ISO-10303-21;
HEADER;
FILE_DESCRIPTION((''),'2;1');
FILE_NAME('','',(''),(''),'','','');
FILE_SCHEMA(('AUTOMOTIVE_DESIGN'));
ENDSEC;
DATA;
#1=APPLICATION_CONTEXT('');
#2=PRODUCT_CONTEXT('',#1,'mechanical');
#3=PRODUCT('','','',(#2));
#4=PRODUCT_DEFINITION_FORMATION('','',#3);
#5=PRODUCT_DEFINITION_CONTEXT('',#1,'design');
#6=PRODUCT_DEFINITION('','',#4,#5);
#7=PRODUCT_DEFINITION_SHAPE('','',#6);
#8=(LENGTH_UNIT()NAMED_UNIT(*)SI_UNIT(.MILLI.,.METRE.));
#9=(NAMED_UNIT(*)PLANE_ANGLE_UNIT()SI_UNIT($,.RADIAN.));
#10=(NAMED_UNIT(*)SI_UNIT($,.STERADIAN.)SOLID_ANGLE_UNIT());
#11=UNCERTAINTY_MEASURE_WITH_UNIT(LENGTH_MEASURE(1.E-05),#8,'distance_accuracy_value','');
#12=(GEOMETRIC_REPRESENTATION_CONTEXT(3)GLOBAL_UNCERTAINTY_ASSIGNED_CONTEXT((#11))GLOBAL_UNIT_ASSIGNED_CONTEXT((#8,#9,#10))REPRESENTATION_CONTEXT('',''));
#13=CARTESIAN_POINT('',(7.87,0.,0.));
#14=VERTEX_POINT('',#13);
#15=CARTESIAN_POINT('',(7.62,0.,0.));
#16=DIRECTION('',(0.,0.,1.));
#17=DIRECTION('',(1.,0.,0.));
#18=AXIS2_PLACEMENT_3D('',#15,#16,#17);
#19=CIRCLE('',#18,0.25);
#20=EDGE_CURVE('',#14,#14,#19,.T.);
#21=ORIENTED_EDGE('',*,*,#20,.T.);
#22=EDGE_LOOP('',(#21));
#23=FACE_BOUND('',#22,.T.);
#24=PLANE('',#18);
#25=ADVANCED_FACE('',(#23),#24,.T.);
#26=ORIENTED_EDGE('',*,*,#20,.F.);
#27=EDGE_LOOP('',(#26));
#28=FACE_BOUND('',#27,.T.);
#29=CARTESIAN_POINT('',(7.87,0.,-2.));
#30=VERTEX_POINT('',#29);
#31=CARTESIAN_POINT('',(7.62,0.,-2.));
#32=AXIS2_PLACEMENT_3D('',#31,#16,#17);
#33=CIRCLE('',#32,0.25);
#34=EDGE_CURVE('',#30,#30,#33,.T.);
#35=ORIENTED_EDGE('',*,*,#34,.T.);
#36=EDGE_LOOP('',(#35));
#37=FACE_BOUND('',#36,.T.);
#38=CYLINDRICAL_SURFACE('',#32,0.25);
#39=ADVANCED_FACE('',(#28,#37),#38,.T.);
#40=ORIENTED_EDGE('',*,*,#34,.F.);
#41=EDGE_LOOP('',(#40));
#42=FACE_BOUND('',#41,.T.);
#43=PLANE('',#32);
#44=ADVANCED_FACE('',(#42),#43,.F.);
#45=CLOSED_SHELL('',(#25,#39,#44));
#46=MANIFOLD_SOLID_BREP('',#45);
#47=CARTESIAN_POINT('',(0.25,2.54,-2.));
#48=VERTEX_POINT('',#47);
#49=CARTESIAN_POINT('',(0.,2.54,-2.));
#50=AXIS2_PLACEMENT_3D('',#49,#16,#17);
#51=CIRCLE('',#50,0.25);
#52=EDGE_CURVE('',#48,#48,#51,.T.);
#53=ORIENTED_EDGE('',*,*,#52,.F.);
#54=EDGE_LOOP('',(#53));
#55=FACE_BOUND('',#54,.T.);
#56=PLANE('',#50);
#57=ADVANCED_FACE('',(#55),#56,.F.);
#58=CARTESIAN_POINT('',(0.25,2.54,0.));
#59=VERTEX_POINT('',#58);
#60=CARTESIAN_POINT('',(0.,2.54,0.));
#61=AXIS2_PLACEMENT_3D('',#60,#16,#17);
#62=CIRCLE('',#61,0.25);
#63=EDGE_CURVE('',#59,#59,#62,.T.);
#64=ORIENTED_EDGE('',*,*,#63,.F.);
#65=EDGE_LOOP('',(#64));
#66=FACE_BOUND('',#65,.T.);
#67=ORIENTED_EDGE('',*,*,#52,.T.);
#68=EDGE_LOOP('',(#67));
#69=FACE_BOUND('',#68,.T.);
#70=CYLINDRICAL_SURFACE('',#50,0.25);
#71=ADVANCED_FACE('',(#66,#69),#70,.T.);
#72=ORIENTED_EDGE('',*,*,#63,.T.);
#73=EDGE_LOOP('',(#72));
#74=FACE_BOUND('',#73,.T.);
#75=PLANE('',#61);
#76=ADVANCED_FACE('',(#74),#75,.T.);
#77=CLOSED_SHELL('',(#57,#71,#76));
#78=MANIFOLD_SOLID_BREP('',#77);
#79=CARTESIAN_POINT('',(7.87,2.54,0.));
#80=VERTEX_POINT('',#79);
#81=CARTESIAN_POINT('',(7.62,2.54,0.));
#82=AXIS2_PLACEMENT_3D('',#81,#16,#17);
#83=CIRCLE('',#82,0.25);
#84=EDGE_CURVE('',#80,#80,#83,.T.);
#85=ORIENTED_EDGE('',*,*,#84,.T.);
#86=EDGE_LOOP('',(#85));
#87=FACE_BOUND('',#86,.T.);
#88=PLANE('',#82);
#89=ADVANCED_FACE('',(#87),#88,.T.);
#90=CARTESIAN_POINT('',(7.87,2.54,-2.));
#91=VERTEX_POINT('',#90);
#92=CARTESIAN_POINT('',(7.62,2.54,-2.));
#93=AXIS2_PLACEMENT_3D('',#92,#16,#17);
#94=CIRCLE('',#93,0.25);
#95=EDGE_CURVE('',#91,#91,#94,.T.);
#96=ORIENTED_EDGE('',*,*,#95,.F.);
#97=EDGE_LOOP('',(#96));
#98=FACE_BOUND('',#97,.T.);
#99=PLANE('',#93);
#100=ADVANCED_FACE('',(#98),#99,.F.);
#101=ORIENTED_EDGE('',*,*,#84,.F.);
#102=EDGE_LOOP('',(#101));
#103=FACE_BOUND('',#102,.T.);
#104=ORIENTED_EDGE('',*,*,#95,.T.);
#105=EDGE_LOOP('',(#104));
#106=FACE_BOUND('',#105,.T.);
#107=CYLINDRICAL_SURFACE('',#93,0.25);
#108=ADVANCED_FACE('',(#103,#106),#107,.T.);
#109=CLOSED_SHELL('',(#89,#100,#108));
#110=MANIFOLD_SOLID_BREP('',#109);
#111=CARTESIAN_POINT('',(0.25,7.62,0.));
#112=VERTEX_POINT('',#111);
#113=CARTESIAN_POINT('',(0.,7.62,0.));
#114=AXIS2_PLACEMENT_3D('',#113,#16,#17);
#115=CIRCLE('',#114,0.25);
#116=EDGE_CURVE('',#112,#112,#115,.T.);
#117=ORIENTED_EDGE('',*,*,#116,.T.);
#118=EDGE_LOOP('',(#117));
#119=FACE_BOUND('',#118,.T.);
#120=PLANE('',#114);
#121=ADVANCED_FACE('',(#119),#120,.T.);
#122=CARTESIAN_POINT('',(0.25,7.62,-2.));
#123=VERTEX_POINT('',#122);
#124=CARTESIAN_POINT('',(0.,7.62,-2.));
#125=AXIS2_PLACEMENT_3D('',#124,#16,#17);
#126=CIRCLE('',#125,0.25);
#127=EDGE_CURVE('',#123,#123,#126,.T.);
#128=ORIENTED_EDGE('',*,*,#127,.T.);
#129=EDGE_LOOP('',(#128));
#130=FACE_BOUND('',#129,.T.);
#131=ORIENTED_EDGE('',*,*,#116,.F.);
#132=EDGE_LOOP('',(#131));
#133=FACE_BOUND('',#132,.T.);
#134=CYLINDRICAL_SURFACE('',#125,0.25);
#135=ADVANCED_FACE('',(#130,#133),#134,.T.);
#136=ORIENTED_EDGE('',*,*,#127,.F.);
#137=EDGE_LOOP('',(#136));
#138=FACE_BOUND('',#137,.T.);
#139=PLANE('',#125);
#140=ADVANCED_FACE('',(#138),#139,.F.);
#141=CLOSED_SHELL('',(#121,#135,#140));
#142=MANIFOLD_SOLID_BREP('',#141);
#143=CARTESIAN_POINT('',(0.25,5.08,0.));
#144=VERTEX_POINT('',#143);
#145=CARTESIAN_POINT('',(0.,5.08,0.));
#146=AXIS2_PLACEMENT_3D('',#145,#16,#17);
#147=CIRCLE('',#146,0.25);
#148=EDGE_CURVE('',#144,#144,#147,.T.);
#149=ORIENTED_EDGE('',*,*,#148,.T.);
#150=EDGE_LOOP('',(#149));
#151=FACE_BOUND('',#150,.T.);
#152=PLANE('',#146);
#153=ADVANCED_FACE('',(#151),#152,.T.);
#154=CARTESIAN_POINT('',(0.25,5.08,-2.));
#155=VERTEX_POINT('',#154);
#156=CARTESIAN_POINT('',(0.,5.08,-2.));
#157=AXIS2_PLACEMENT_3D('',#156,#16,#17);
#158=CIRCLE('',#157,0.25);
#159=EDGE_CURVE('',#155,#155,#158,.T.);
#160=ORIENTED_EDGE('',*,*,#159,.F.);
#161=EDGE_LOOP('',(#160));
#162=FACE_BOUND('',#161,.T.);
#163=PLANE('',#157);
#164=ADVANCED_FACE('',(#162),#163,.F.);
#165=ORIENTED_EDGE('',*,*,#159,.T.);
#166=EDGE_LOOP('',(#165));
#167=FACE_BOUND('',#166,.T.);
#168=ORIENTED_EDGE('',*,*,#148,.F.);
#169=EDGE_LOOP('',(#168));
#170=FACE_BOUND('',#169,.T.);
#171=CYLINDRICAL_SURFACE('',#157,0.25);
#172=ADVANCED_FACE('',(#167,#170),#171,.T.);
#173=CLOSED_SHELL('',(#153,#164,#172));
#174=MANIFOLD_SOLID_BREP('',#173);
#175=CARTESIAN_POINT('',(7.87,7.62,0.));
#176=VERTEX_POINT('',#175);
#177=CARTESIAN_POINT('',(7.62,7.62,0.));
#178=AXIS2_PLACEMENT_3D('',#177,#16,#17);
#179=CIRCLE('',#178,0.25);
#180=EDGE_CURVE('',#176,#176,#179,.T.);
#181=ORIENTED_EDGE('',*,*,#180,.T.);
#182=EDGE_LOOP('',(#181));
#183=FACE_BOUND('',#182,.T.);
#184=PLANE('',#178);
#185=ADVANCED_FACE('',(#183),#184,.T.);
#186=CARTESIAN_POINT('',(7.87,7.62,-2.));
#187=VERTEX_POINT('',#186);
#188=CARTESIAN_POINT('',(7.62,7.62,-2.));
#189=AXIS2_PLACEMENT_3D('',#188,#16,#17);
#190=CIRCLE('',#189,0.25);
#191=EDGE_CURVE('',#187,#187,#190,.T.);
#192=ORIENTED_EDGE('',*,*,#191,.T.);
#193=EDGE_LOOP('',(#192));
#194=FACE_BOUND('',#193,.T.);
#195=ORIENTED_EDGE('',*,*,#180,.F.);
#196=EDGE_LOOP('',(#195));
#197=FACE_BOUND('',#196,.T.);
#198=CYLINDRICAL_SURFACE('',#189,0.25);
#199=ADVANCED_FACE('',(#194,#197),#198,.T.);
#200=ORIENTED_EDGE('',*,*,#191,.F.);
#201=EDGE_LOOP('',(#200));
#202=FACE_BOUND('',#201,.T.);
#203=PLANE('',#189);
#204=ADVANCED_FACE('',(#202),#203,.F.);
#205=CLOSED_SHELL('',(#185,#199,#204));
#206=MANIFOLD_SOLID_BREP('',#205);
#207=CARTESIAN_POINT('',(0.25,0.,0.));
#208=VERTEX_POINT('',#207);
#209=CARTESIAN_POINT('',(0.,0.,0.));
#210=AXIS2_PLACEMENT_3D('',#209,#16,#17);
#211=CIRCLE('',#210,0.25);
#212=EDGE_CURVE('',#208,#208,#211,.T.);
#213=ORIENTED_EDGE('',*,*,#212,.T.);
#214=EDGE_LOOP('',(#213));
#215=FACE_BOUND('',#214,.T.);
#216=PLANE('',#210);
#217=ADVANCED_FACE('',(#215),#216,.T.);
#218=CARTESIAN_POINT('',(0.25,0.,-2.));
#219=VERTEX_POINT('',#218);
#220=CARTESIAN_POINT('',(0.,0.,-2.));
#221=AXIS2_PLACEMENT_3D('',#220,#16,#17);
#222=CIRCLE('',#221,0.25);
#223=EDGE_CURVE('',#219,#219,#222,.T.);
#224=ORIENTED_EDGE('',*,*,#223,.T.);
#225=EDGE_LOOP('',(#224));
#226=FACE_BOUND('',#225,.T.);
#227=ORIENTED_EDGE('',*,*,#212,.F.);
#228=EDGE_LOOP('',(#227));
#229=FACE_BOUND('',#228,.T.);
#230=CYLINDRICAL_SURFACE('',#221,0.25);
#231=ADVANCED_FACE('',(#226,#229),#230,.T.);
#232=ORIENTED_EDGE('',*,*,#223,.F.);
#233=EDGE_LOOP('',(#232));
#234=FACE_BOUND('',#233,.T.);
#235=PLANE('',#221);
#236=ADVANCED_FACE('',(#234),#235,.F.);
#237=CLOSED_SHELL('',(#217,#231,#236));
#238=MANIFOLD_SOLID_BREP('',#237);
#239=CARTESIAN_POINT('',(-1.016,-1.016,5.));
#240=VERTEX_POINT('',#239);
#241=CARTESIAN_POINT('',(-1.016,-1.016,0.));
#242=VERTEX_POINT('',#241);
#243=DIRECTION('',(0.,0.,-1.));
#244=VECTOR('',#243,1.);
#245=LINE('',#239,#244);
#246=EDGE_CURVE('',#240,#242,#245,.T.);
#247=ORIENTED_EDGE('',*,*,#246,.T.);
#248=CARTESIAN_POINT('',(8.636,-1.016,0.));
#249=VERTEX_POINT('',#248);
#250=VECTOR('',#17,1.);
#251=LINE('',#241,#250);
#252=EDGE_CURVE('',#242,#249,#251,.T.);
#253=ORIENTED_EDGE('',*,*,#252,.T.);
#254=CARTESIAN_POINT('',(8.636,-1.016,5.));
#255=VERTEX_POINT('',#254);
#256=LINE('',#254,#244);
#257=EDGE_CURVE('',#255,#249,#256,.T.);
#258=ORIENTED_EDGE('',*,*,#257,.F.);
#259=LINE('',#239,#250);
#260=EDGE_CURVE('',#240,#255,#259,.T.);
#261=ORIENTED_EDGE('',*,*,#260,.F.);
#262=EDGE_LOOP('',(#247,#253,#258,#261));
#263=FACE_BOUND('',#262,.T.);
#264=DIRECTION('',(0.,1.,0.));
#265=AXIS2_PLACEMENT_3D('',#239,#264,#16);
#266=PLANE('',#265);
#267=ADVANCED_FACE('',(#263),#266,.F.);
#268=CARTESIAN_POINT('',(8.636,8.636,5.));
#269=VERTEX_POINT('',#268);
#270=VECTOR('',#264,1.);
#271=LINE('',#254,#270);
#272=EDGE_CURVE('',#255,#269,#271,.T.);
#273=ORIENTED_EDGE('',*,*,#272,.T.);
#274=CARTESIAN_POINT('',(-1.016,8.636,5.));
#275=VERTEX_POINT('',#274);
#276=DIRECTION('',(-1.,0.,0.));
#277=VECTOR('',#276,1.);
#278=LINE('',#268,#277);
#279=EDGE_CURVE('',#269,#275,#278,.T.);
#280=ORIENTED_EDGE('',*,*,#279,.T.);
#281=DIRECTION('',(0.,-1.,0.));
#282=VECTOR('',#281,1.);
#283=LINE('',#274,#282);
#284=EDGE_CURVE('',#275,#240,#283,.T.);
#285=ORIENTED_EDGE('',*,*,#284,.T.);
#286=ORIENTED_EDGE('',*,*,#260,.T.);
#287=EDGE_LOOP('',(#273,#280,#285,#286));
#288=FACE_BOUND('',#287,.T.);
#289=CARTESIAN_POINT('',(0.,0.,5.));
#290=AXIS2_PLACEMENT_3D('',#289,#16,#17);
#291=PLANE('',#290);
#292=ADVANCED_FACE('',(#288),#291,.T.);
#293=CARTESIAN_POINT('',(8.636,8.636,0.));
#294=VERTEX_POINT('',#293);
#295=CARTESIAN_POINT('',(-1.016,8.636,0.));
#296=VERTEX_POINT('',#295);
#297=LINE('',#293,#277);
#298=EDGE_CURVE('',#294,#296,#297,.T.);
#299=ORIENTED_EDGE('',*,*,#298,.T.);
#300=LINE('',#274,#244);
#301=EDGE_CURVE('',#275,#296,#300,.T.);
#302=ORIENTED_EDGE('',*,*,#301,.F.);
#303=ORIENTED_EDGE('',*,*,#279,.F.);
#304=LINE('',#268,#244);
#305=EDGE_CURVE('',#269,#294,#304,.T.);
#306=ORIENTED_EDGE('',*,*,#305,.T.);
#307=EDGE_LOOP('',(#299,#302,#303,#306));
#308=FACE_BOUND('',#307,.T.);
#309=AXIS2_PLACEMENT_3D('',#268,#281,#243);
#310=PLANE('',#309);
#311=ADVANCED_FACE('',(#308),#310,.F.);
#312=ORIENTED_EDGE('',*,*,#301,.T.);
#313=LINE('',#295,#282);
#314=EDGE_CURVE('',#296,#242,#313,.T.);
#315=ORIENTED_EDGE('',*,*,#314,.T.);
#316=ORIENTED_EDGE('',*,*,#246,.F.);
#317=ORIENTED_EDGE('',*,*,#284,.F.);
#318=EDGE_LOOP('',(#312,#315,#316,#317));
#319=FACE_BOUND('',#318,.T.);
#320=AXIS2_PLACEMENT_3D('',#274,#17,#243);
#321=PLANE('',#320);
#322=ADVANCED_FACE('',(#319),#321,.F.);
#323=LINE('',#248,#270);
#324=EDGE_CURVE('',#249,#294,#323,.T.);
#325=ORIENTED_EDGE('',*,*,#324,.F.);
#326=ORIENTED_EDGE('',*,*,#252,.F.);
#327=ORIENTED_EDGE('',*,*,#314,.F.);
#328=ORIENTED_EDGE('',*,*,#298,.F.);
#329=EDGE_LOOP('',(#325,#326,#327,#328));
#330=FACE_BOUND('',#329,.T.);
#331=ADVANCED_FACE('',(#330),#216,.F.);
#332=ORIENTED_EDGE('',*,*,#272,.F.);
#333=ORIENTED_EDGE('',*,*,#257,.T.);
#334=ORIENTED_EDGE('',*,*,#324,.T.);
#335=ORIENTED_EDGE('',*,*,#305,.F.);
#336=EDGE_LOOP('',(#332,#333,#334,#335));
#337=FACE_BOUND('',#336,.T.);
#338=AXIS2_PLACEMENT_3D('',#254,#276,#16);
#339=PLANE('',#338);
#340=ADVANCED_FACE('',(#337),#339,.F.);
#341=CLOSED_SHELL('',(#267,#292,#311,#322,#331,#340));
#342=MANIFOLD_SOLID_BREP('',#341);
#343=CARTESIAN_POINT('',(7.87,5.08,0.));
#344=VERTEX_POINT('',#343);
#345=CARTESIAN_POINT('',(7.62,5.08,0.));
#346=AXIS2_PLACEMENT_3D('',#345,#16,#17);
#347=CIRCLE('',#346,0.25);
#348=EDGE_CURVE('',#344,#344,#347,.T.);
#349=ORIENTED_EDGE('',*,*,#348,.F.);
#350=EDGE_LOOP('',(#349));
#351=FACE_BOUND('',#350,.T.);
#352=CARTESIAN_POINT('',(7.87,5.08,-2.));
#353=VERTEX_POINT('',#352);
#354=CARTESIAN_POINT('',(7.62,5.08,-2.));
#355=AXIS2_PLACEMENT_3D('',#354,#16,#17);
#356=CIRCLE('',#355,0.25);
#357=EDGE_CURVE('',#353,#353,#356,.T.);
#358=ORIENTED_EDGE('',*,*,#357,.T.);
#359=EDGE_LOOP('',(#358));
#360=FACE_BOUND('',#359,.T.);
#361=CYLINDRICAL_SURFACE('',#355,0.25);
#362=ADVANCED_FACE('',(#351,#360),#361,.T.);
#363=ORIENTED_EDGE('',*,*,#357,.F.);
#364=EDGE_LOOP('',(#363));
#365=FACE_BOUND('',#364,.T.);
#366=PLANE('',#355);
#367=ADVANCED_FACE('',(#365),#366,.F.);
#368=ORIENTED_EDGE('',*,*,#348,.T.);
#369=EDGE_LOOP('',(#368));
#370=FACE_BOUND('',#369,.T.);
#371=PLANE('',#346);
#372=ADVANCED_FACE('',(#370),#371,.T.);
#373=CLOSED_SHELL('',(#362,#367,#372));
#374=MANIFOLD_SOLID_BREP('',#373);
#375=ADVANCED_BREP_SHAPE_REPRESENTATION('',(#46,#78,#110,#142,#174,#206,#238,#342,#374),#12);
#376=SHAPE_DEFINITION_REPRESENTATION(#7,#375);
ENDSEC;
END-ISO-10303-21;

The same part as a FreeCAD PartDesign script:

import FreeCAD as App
import Part
import Sketcher
from FreeCAD import Vector

doc = App.newDocument("Part")
body = doc.addObject("PartDesign::Body", "Body")

sketch1 = body.newObject("Sketcher::SketchObject", "Sketch")
sketch1.AttachmentSupport = (doc.getObject("XY_Plane"), [""])
sketch1.MapMode = "FlatFace"
sketch1.addGeometry([
    Part.LineSegment(Vector(-1.016, 8.636, 0), Vector(-1.016, -1.016, 0)),
    Part.LineSegment(Vector(-1.016, -1.016, 0), Vector(8.636, -1.016, 0)),
    Part.LineSegment(Vector(8.636, -1.016, 0), Vector(8.636, 8.636, 0)),
    Part.LineSegment(Vector(8.636, 8.636, 0), Vector(-1.016, 8.636, 0)),
], False)
sketch1.addConstraint([
    Sketcher.Constraint("Coincident", 0, 2, 1, 1),
    Sketcher.Constraint("Coincident", 1, 2, 2, 1),
    Sketcher.Constraint("Coincident", 2, 2, 3, 1),
    Sketcher.Constraint("Coincident", 3, 2, 0, 1),
    Sketcher.Constraint("Vertical", 0),
    Sketcher.Constraint("Horizontal", 1),
    Sketcher.Constraint("Vertical", 2),
    Sketcher.Constraint("Horizontal", 3),
    Sketcher.Constraint("Equal", 3, 0),
    Sketcher.Constraint("DistanceX", 1, 1, 1, 2, 9.652),
    Sketcher.Constraint("DistanceX", 0, 2, -1, 1, 1.016),
    Sketcher.Constraint("DistanceY", 0, 2, -1, 1, 1.016),
])
pad1 = body.newObject("PartDesign::Pad", "Pad")
pad1.Profile = sketch1
pad1.Length = 5
body2 = doc.addObject("PartDesign::Body", "Body001")

sketch2 = body2.newObject("Sketcher::SketchObject", "Sketch001")
sketch2.AttachmentSupport = (doc.getObject("XY_Plane001"), [""])
sketch2.MapMode = "FlatFace"
sketch2.addGeometry(Part.Circle(Vector(0, 0, 0), Vector(0, 0, 1), 0.25), False)
sketch2.addConstraint([
    Sketcher.Constraint("Coincident", 0, 3, -1, 1),
    Sketcher.Constraint("Diameter", 0, 0.5),
])
pad2 = body2.newObject("PartDesign::Pad", "Pad001")
pad2.Profile = sketch2
pad2.Length = 2
pad2.Reversed = True
body3 = doc.addObject("PartDesign::Body", "Body002")

sketch3 = body3.newObject("Sketcher::SketchObject", "Sketch002")
sketch3.AttachmentSupport = (doc.getObject("XY_Plane002"), [""])
sketch3.MapMode = "FlatFace"
sketch3.addGeometry(Part.Circle(Vector(0, 2.54, 0), Vector(0, 0, 1), 0.25), False)
sketch3.addConstraint([
    Sketcher.Constraint("PointOnObject", 0, 3, -2),
    Sketcher.Constraint("Diameter", 0, 0.5),
    Sketcher.Constraint("DistanceY", -1, 1, 0, 3, 2.54),
])
pad3 = body3.newObject("PartDesign::Pad", "Pad002")
pad3.Profile = sketch3
pad3.Length = 2
pad3.Reversed = True
body4 = doc.addObject("PartDesign::Body", "Body003")

sketch4 = body4.newObject("Sketcher::SketchObject", "Sketch003")
sketch4.AttachmentSupport = (doc.getObject("XY_Plane003"), [""])
sketch4.MapMode = "FlatFace"
sketch4.addGeometry(Part.Circle(Vector(0, 5.08, 0), Vector(0, 0, 1), 0.25), False)
sketch4.addConstraint([
    Sketcher.Constraint("PointOnObject", 0, 3, -2),
    Sketcher.Constraint("Diameter", 0, 0.5),
    Sketcher.Constraint("DistanceY", -1, 1, 0, 3, 5.08),
])
pad4 = body4.newObject("PartDesign::Pad", "Pad003")
pad4.Profile = sketch4
pad4.Length = 2
pad4.Reversed = True
body5 = doc.addObject("PartDesign::Body", "Body004")

sketch5 = body5.newObject("Sketcher::SketchObject", "Sketch004")
sketch5.AttachmentSupport = (doc.getObject("XY_Plane004"), [""])
sketch5.MapMode = "FlatFace"
sketch5.addGeometry(Part.Circle(Vector(0, 7.62, 0), Vector(0, 0, 1), 0.25), False)
sketch5.addConstraint([
    Sketcher.Constraint("PointOnObject", 0, 3, -2),
    Sketcher.Constraint("Diameter", 0, 0.5),
    Sketcher.Constraint("DistanceY", -1, 1, 0, 3, 7.62),
])
pad5 = body5.newObject("PartDesign::Pad", "Pad004")
pad5.Profile = sketch5
pad5.Length = 2
pad5.Reversed = True
body6 = doc.addObject("PartDesign::Body", "Body005")

sketch6 = body6.newObject("Sketcher::SketchObject", "Sketch005")
sketch6.AttachmentSupport = (doc.getObject("XY_Plane005"), [""])
sketch6.MapMode = "FlatFace"
sketch6.addGeometry(Part.Circle(Vector(7.62, 0, 0), Vector(0, 0, 1), 0.25), False)
sketch6.addConstraint([
    Sketcher.Constraint("PointOnObject", 0, 3, -1),
    Sketcher.Constraint("Diameter", 0, 0.5),
    Sketcher.Constraint("DistanceX", -1, 1, 0, 3, 7.62),
])
pad6 = body6.newObject("PartDesign::Pad", "Pad005")
pad6.Profile = sketch6
pad6.Length = 2
pad6.Reversed = True
body7 = doc.addObject("PartDesign::Body", "Body006")

sketch7 = body7.newObject("Sketcher::SketchObject", "Sketch006")
sketch7.AttachmentSupport = (doc.getObject("XY_Plane006"), [""])
sketch7.MapMode = "FlatFace"
sketch7.addGeometry(Part.Circle(Vector(7.62, 2.54, 0), Vector(0, 0, 1), 0.25), False)
sketch7.addConstraint([
    Sketcher.Constraint("Diameter", 0, 0.5),
    Sketcher.Constraint("DistanceX", -1, 1, 0, 3, 7.62),
    Sketcher.Constraint("DistanceY", -1, 1, 0, 3, 2.54),
])
pad7 = body7.newObject("PartDesign::Pad", "Pad006")
pad7.Profile = sketch7
pad7.Length = 2
pad7.Reversed = True
body8 = doc.addObject("PartDesign::Body", "Body007")

sketch8 = body8.newObject("Sketcher::SketchObject", "Sketch007")
sketch8.AttachmentSupport = (doc.getObject("XY_Plane007"), [""])
sketch8.MapMode = "FlatFace"
sketch8.addGeometry(Part.Circle(Vector(7.62, 5.08, 0), Vector(0, 0, 1), 0.25), False)
sketch8.addConstraint([
    Sketcher.Constraint("Diameter", 0, 0.5),
    Sketcher.Constraint("DistanceX", -1, 1, 0, 3, 7.62),
    Sketcher.Constraint("DistanceY", -1, 1, 0, 3, 5.08),
])
pad8 = body8.newObject("PartDesign::Pad", "Pad007")
pad8.Profile = sketch8
pad8.Length = 2
pad8.Reversed = True
body9 = doc.addObject("PartDesign::Body", "Body008")

sketch9 = body9.newObject("Sketcher::SketchObject", "Sketch008")
sketch9.AttachmentSupport = (doc.getObject("XY_Plane008"), [""])
sketch9.MapMode = "FlatFace"
sketch9.addGeometry(Part.Circle(Vector(7.62, 7.62, 0), Vector(0, 0, 1), 0.25), False)
sketch9.addConstraint([
    Sketcher.Constraint("Diameter", 0, 0.5),
    Sketcher.Constraint("DistanceX", -1, 1, 0, 3, 7.62),
    Sketcher.Constraint("DistanceY", -1, 1, 0, 3, 7.62),
])
pad9 = body9.newObject("PartDesign::Pad", "Pad008")
pad9.Profile = sketch9
pad9.Length = 2
pad9.Reversed = True

doc.recompute()
